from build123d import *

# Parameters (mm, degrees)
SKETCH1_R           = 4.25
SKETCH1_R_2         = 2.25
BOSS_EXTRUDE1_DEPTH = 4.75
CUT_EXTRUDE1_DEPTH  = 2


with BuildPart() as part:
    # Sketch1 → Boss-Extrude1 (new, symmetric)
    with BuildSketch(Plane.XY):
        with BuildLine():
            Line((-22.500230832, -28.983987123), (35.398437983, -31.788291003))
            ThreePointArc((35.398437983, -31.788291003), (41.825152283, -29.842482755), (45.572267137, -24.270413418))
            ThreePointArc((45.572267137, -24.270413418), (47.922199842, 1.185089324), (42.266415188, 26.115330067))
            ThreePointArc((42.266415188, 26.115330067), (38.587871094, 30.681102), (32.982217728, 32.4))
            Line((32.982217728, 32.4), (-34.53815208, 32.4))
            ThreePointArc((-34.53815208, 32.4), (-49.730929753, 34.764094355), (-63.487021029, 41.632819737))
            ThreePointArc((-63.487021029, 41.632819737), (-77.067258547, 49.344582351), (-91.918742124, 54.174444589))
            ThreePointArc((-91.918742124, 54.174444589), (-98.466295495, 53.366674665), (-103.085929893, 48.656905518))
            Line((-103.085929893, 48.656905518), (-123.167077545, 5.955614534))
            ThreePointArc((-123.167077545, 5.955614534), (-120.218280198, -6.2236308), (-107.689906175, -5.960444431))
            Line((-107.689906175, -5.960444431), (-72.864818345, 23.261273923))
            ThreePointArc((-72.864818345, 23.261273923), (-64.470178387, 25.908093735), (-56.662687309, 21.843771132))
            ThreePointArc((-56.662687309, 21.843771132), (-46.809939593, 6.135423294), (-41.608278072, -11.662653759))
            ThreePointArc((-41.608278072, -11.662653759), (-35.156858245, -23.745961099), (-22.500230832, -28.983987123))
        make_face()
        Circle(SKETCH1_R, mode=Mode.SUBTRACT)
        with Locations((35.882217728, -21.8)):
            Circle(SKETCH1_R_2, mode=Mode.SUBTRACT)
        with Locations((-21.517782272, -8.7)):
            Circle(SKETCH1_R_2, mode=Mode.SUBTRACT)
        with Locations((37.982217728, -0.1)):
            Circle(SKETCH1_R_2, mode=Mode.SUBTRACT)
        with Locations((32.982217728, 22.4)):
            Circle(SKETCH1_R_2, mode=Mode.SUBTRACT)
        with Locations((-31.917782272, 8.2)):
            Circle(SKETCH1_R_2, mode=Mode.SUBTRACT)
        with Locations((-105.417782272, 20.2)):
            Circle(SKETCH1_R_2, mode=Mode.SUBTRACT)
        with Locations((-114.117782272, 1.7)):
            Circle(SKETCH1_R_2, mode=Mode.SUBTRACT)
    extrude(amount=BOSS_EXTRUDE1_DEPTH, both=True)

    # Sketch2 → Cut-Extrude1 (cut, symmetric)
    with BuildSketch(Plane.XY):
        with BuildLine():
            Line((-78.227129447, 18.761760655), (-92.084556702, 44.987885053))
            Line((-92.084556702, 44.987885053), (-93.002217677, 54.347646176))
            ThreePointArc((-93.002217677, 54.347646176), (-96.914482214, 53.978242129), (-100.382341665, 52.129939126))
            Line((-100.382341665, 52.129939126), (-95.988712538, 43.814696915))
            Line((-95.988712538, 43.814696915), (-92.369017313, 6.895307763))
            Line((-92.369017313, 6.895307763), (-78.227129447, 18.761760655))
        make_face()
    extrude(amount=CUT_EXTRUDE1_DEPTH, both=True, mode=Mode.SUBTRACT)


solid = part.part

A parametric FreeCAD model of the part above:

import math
import FreeCAD as App
import Part
import Sketcher
from FreeCAD import Vector
Q = App.Units.Quantity

doc = App.newDocument("Part")
body = doc.addObject("PartDesign::Body", "Body")

sketch1 = doc.addObject("Sketcher::SketchObject", "Sketch")
body.addObject(sketch1)
sketch1.AttachmentSupport = (doc.XY_Plane, [""])
sketch1.MapMode = "FlatFace"
sketch1.addGeometry(Part.LineSegment(Vector(-22.5, -29, 0), Vector(35.4, -31.8, 0)), False)
sketch1.addGeometry(Part.ArcOfCircle(Part.Circle(Vector(35.9, -21.8, 0), Vector(0, 0, 1), 10), math.radians(-93), math.radians(-14)), False)
sketch1.addGeometry(Part.ArcOfCircle(Part.Circle(Vector(-33.4, -4.1, 0), Vector(0, 0, 1), 81.5), math.radians(-14), math.radians(22)), False)
sketch1.addGeometry(Part.ArcOfCircle(Part.Circle(Vector(33, 22.4, 0), Vector(0, 0, 1), 10), math.radians(22), math.radians(90)), False)
sketch1.addGeometry(Part.LineSegment(Vector(33, 32.4, 0), Vector(-34.5, 32.4, 0)), False)
sketch1.addGeometry(Part.ArcOfCircle(Part.Circle(Vector(-34.5, 82.4, 0), Vector(0, 0, 1), 50), math.radians(-125), math.radians(-90)), False)
sketch1.addGeometry(Part.ArcOfCircle(Part.Circle(Vector(-108.3, -21.5, 0), Vector(0, 0, 1), 77.4), math.radians(55), math.radians(78)), False)
sketch1.addGeometry(Part.ArcOfCircle(Part.Circle(Vector(-94, 44.4, 0), Vector(0, 0, 1), 10), math.radians(78), math.radians(155)), False)
sketch1.addGeometry(Part.LineSegment(Vector(-103.1, 48.7, 0), Vector(-123.2, 6, 0)), False)
sketch1.addGeometry(Part.ArcOfCircle(Part.Circle(Vector(-114.1, 1.7, 0), Vector(0, 0, 1), 10), math.radians(155), math.radians(310)), False)
sketch1.addGeometry(Part.LineSegment(Vector(-107.7, -6, 0), Vector(-72.9, 23.3, 0)), False)
sketch1.addGeometry(Part.ArcOfCircle(Part.Circle(Vector(-65.5, 14.5, 0), Vector(0, 0, 1), 11.5), math.radians(40), math.radians(130)), False)
sketch1.addGeometry(Part.ArcOfCircle(Part.Circle(Vector(-108.3, -21.5, 0), Vector(0, 0, 1), 67.4), math.radians(8), math.radians(40)), False)
sketch1.addGeometry(Part.ArcOfCircle(Part.Circle(Vector(-21.5, -8.7, 0), Vector(0, 0, 1), 20.3), math.radians(-172), math.radians(-93)), False)
sketch1.addGeometry(Part.Circle(Vector(35.9, -21.8, 0), Vector(0, 0, 1), 2.2), False)
sketch1.addGeometry(Part.Circle(Vector(-21.5, -8.7, 0), Vector(0, 0, 1), 2.2), False)
sketch1.addGeometry(Part.Circle(Vector(0, 0, 0), Vector(0, 0, 1), 4.2), False)
sketch1.addGeometry(Part.Circle(Vector(38, -0.1, 0), Vector(0, 0, 1), 2.2), False)
sketch1.addGeometry(Part.Circle(Vector(-114.1, 1.7, 0), Vector(0, 0, 1), 2.2), False)
sketch1.addGeometry(Part.Circle(Vector(-105.4, 20.2, 0), Vector(0, 0, 1), 2.2), False)
sketch1.addGeometry(Part.Circle(Vector(-31.9, 8.2, 0), Vector(0, 0, 1), 2.2), False)
sketch1.addGeometry(Part.Circle(Vector(33, 22.4, 0), Vector(0, 0, 1), 2.2), False)
sketch1.addConstraint(Sketcher.Constraint("Tangent", 0, 2, 1, 1))
sketch1.addConstraint(Sketcher.Constraint("Tangent", 1, 2, 2, 1))
sketch1.addConstraint(Sketcher.Constraint("Tangent", 2, 2, 3, 1))
sketch1.addConstraint(Sketcher.Constraint("Tangent", 3, 2, 4, 1))
sketch1.addConstraint(Sketcher.Constraint("Tangent", 4, 2, 5, 2))
sketch1.addConstraint(Sketcher.Constraint("Tangent", 5, 1, 6, 1))
sketch1.addConstraint(Sketcher.Constraint("Tangent", 6, 2, 7, 1))
sketch1.addConstraint(Sketcher.Constraint("Tangent", 7, 2, 8, 1))
sketch1.addConstraint(Sketcher.Constraint("Tangent", 8, 2, 9, 1))
sketch1.addConstraint(Sketcher.Constraint("Tangent", 9, 2, 10, 1))
sketch1.addConstraint(Sketcher.Constraint("Tangent", 10, 2, 11, 2))
sketch1.addConstraint(Sketcher.Constraint("Tangent", 11, 1, 12, 2))
sketch1.addConstraint(Sketcher.Constraint("Tangent", 12, 1, 13, 1))
sketch1.addConstraint(Sketcher.Constraint("Tangent", 13, 2, 0, 1))
sketch1.addConstraint(Sketcher.Constraint("Horizontal", 4))
sketch1.addConstraint(Sketcher.Constraint("Coincident", 16, 3, -1, 1))
sketch1.addConstraint(Sketcher.Constraint("Coincident", 12, 3, 6, 3))
sketch1.addConstraint(Sketcher.Constraint("Coincident", 14, 3, 1, 3))
sketch1.addConstraint(Sketcher.Constraint("Coincident", 15, 3, 13, 3))
sketch1.addConstraint(Sketcher.Constraint("Coincident", 18, 3, 9, 3))
sketch1.addConstraint(Sketcher.Constraint("Coincident", 21, 3, 3, 3))
sketch1.addConstraint(Sketcher.Constraint("Equal", 1, 3))
sketch1.addConstraint(Sketcher.Constraint("Equal", 3, 7))
sketch1.addConstraint(Sketcher.Constraint("Equal", 7, 9))
sketch1.addConstraint(Sketcher.Constraint("Equal", 14, 15))
sketch1.addConstraint(Sketcher.Constraint("Equal", 15, 17))
sketch1.addConstraint(Sketcher.Constraint("Equal", 17, 18))
sketch1.addConstraint(Sketcher.Constraint("Equal", 18, 19))
sketch1.addConstraint(Sketcher.Constraint("Equal", 19, 20))
sketch1.addConstraint(Sketcher.Constraint("Equal", 20, 21))
sketch1.addConstraint(Sketcher.Constraint("Radius", 1, 10.0))
sketch1.addConstraint(Sketcher.Constraint("Radius", 5, 50.0))
sketch1.addConstraint(Sketcher.Constraint("Diameter", 14, 4.5))
sketch1.addConstraint(Sketcher.Constraint("Diameter", 16, 8.5))
sketch1.addConstraint(Sketcher.Constraint("Angle", 10, Q("40 deg")))
sketch1.addConstraint(Sketcher.Constraint("DistanceX", 3, 3, 17, 3, 5.0))
sketch1.addConstraint(Sketcher.Constraint("DistanceY", 1, 3, -1, 1, 21.8))
sketch1.addConstraint(Sketcher.Constraint("DistanceY", -1, 1, 3, 3, 22.4))
sketch1.addConstraint(Sketcher.Constraint("DistanceY", 6, 3, -1, 1, 21.5))
sketch1.addConstraint(Sketcher.Constraint("DistanceY", -1, 1, 9, 3, 1.7))
sketch1.addConstraint(Sketcher.Constraint("DistanceY", 13, 3, -1, 1, 8.7))
sketch1.addConstraint(Sketcher.Constraint("DistanceY", 17, 3, -1, 1, 0.1))
sketch1.addConstraint(Sketcher.Constraint("DistanceY", -1, 1, 19, 3, 20.2))
sketch1.addConstraint(Sketcher.Constraint("DistanceY", -1, 1, 20, 3, 8.2))
sketch1.addConstraint(Sketcher.Constraint("Radius", 11, 11.500399))
sketch1.addConstraint(Sketcher.Constraint("DistanceX", 3, 3, 1, 3, 2.9))
sketch1.addConstraint(Sketcher.Constraint("DistanceX", 6, 3, 1, 3, 144.2))
sketch1.addConstraint(Sketcher.Constraint("DistanceX", 9, 3, 6, 3, 5.8))
sketch1.addConstraint(Sketcher.Constraint("DistanceX", 13, 3, 1, 3, 57.4))
sketch1.addConstraint(Sketcher.Constraint("DistanceX", 9, 3, 19, 3, 8.7))
sketch1.addConstraint(Sketcher.Constraint("DistanceX", 20, 3, 15, 3, 10.4))
sketch1.addConstraint(Sketcher.Constraint("Radius", 2, 81.454628))
sketch1.addConstraint(Sketcher.Constraint("Radius", 6, 77.430938))
sketch1.addConstraint(Sketcher.Constraint("Radius", 12, 67.430937))
sketch1.addConstraint(Sketcher.Constraint("Distance", 8, 47.187421))
sketch1.addConstraint(Sketcher.Constraint("DistanceX", 2, 3, -1, 1, 33.35767))
pad1 = doc.addObject("PartDesign::Pad", "Pad")
body.addObject(pad1)
pad1.Profile = sketch1
pad1.Length = 9.5
pad1.Midplane = True

sketch2 = doc.addObject("Sketcher::SketchObject", "Sketch001")
body.addObject(sketch2)
sketch2.AttachmentSupport = (doc.XY_Plane, [""])
sketch2.MapMode = "FlatFace"
sketch2.addGeometry(Part.LineSegment(Vector(-78, 19, 0), Vector(-92, 45, 0)), False)
sketch2.addGeometry(Part.LineSegment(Vector(-92, 45, 0), Vector(-93, 54, 0)), False)
sketch2.addGeometry(Part.ArcOfCircle(Part.Circle(Vector(-94, 44, 0), Vector(0, 0, 1), 10), math.radians(84), math.radians(129)), False)
sketch2.addGeometry(Part.LineSegment(Vector(-100, 52, 0), Vector(-96, 44, 0)), False)
sketch2.addGeometry(Part.LineSegment(Vector(-96, 44, 0), Vector(-92, 7, 0)), False)
sketch2.addGeometry(Part.LineSegment(Vector(-92, 7, 0), Vector(-78, 19, 0)), False)
sketch2.addConstraint(Sketcher.Constraint("Coincident", 0, 2, 1, 1))
sketch2.addConstraint(Sketcher.Constraint("Coincident", 1, 2, 2, 1))
sketch2.addConstraint(Sketcher.Constraint("Coincident", 2, 2, 3, 1))
sketch2.addConstraint(Sketcher.Constraint("Coincident", 3, 2, 4, 1))
sketch2.addConstraint(Sketcher.Constraint("Coincident", 4, 2, 5, 1))
sketch2.addConstraint(Sketcher.Constraint("Coincident", 5, 2, 0, 1))
sketch2.addConstraint(Sketcher.Constraint("Parallel", 0, 3))
sketch2.addConstraint(Sketcher.Constraint("Parallel", 1, 4))
sketch2.addConstraint(Sketcher.Constraint("Equal", 1, 3))
sketch2.addConstraint(Sketcher.Constraint("Radius", 2, 10.0))
sketch2.addConstraint(Sketcher.Constraint("Angle", 5, Q("40 deg")))
sketch2.addConstraint(Sketcher.Constraint("DistanceX", 1, 2, 4, 2, 0.6332))
sketch2.addConstraint(Sketcher.Constraint("Distance", 0, 29.662061))
sketch2.addConstraint(Sketcher.Constraint("Distance", 1, 9.404639))
sketch2.addConstraint(Sketcher.Constraint("Distance", 4, 37.096408))
sketch2.addConstraint(Sketcher.Constraint("DistanceY", -1, 1, 2, 3, 44.401291))
sketch2.addConstraint(Sketcher.Constraint("DistanceX", 2, 2, -1, 1, 100.382342))
sketch2.addConstraint(Sketcher.Constraint("DistanceY", -1, 1, 2, 2, 52.129939))
sketch2.addConstraint(Sketcher.Constraint("DistanceX", 5, 2, -1, 1, 78.227129))
pocket1 = doc.addObject("PartDesign::Pocket", "Pocket")
body.addObject(pocket1)
pocket1.Profile = sketch2
pocket1.Length = 4
pocket1.Midplane = True

doc.recompute()
